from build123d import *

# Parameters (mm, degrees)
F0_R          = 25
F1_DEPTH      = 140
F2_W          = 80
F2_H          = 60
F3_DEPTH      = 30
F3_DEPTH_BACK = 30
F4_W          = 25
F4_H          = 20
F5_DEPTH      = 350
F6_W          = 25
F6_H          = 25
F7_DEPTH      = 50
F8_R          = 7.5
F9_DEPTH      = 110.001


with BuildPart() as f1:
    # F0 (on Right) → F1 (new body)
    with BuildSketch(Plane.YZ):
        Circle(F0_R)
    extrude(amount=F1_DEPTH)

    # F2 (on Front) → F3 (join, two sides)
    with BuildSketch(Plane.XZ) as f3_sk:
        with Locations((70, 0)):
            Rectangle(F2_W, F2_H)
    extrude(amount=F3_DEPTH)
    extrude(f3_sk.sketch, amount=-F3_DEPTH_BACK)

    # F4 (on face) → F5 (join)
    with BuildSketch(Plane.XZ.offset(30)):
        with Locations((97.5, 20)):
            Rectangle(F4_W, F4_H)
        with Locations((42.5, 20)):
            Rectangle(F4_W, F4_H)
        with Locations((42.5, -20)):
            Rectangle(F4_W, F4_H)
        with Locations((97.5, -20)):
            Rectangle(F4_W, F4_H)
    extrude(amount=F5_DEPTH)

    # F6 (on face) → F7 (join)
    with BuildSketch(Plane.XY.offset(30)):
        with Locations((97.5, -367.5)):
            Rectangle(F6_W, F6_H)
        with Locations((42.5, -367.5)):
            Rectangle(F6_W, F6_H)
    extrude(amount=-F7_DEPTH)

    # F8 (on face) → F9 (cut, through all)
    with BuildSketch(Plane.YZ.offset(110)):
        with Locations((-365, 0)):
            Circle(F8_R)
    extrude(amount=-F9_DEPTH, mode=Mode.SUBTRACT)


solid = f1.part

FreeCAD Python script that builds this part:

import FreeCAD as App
import Part
import Sketcher
from FreeCAD import Vector

doc = App.newDocument("Part")
params = doc.addObject("Spreadsheet::Sheet", "Params")
for row, (alias, value) in enumerate([
    ("sketch1_diameter", "50 mm"),
    ("pad1_length", "140 mm"),
    ("sketch2_width", "80 mm"),
    ("sketch2_height", "60 mm"),
    ("pad2_length", "30 mm"),
    ("pad2_length2", "30 mm"),
    ("sketch3_width", "25 mm"),
    ("sketch3_height", "20 mm"),
    ("pad3_length", "350 mm"),
    ("sketch4_width", "25 mm"),
    ("pad4_length", "50 mm"),
    ("sketch5_diameter", "15 mm"),
], start=1):
    params.set(f"A{row}", alias)
    params.set(f"B{row}", "=" + value)
    params.setAlias(f"B{row}", alias)

body = doc.addObject("PartDesign::Body", "Body")

# Sketch on YZ plane
sketch1 = doc.addObject("Sketcher::SketchObject", "Sketch")
body.addObject(sketch1)
sketch1.AttachmentSupport = (doc.YZ_Plane, [""])
sketch1.MapMode = "FlatFace"
sketch1.addGeometry(Part.Circle(Vector(0, 0, 0), Vector(0, 0, 1), 25), False)
sketch1.addConstraint([
    Sketcher.Constraint("Coincident", 0, 3, -1, 1),
    Sketcher.Constraint("Diameter", 0, 50.0),
])
sketch1.setExpression("Constraints[1]", "Params.sketch1_diameter")
pad1 = doc.addObject("PartDesign::Pad", "Pad")
body.addObject(pad1)
pad1.Profile = sketch1
pad1.setExpression("Length", "Params.pad1_length")

# Sketch on XZ plane
sketch2 = doc.addObject("Sketcher::SketchObject", "Sketch001")
body.addObject(sketch2)
sketch2.AttachmentSupport = (doc.XZ_Plane, [""])
sketch2.MapMode = "FlatFace"
sketch2.addGeometry([
    Part.LineSegment(Vector(30, 30, 0), Vector(30, -30, 0)),
    Part.LineSegment(Vector(30, -30, 0), Vector(110, -30, 0)),
    Part.LineSegment(Vector(110, -30, 0), Vector(110, 30, 0)),
    Part.LineSegment(Vector(110, 30, 0), Vector(30, 30, 0)),
], False)
sketch2.addConstraint([
    Sketcher.Constraint("Coincident", 0, 2, 1, 1),
    Sketcher.Constraint("Coincident", 1, 2, 2, 1),
    Sketcher.Constraint("Coincident", 2, 2, 3, 1),
    Sketcher.Constraint("Coincident", 3, 2, 0, 1),
    Sketcher.Constraint("Vertical", 0),
    Sketcher.Constraint("Horizontal", 1),
    Sketcher.Constraint("Vertical", 2),
    Sketcher.Constraint("Horizontal", 3),
    Sketcher.Constraint("DistanceX", 1, 1, 1, 2, 80.0),
    Sketcher.Constraint("DistanceY", 0, 2, 0, 1, 60.0),
    Sketcher.Constraint("DistanceX", -1, 1, 0, 2, 30.0),
    Sketcher.Constraint("DistanceY", 0, 2, -1, 1, 30.0),
])
sketch2.setExpression("Constraints[8]", "Params.sketch2_width")
sketch2.setExpression("Constraints[9]", "Params.sketch2_height")
pad2 = doc.addObject("PartDesign::Pad", "Pad001")
body.addObject(pad2)
pad2.Profile = sketch2
pad2.Type = "TwoLengths"
pad2.setExpression("Length", "Params.pad2_length")
pad2.setExpression("Length2", "Params.pad2_length2")

# Sketch on XZ plane
sketch3 = doc.addObject("Sketcher::SketchObject", "Sketch002")
body.addObject(sketch3)
sketch3.AttachmentSupport = (doc.XZ_Plane, [""])
sketch3.MapMode = "FlatFace"
sketch3.AttachmentOffset = App.Placement(Vector(0, 0, 30), App.Rotation())
sketch3.addGeometry([
    Part.LineSegment(Vector(85, 30, 0), Vector(85, 10, 0)),  # 0
    Part.LineSegment(Vector(85, 10, 0), Vector(110, 10, 0)),  # 1
    Part.LineSegment(Vector(110, 10, 0), Vector(110, 30, 0)),  # 2
    Part.LineSegment(Vector(110, 30, 0), Vector(85, 30, 0)),  # 3
    Part.LineSegment(Vector(30, 30, 0), Vector(30, 10, 0)),  # 4
    Part.LineSegment(Vector(30, 10, 0), Vector(55, 10, 0)),  # 5
    Part.LineSegment(Vector(55, 10, 0), Vector(55, 30, 0)),  # 6
    Part.LineSegment(Vector(55, 30, 0), Vector(30, 30, 0)),  # 7
    Part.LineSegment(Vector(30, -10, 0), Vector(30, -30, 0)),  # 8
    Part.LineSegment(Vector(30, -30, 0), Vector(55, -30, 0)),  # 9
    Part.LineSegment(Vector(55, -30, 0), Vector(55, -10, 0)),  # 10
    Part.LineSegment(Vector(55, -10, 0), Vector(30, -10, 0)),  # 11
    Part.LineSegment(Vector(85, -10, 0), Vector(85, -30, 0)),  # 12
    Part.LineSegment(Vector(85, -30, 0), Vector(110, -30, 0)),  # 13
    Part.LineSegment(Vector(110, -30, 0), Vector(110, -10, 0)),  # 14
    Part.LineSegment(Vector(110, -10, 0), Vector(85, -10, 0)),  # 15
], False)
sketch3.addConstraint([
    Sketcher.Constraint("Coincident", 0, 2, 1, 1),
    Sketcher.Constraint("Coincident", 1, 2, 2, 1),
    Sketcher.Constraint("Coincident", 2, 2, 3, 1),
    Sketcher.Constraint("Coincident", 3, 2, 0, 1),
    Sketcher.Constraint("Coincident", 4, 2, 5, 1),
    Sketcher.Constraint("Coincident", 5, 2, 6, 1),
    Sketcher.Constraint("Coincident", 6, 2, 7, 1),
    Sketcher.Constraint("Coincident", 7, 2, 4, 1),
    Sketcher.Constraint("Coincident", 8, 2, 9, 1),
    Sketcher.Constraint("Coincident", 9, 2, 10, 1),
    Sketcher.Constraint("Coincident", 10, 2, 11, 1),
    Sketcher.Constraint("Coincident", 11, 2, 8, 1),
    Sketcher.Constraint("Coincident", 12, 2, 13, 1),
    Sketcher.Constraint("Coincident", 13, 2, 14, 1),
    Sketcher.Constraint("Coincident", 14, 2, 15, 1),
    Sketcher.Constraint("Coincident", 15, 2, 12, 1),
    Sketcher.Constraint("Vertical", 0),
    Sketcher.Constraint("Horizontal", 1),
    Sketcher.Constraint("Vertical", 2),
    Sketcher.Constraint("Horizontal", 3),
    Sketcher.Constraint("Vertical", 4),
    Sketcher.Constraint("Horizontal", 5),
    Sketcher.Constraint("Vertical", 6),
    Sketcher.Constraint("Horizontal", 7),
    Sketcher.Constraint("Vertical", 8),
    Sketcher.Constraint("Horizontal", 9),
    Sketcher.Constraint("Vertical", 10),
    Sketcher.Constraint("Horizontal", 11),
    Sketcher.Constraint("Vertical", 12),
    Sketcher.Constraint("Horizontal", 13),
    Sketcher.Constraint("Vertical", 14),
    Sketcher.Constraint("Horizontal", 15),
    Sketcher.Constraint("Symmetric", 7, 2, 8, 2, -1),
    Sketcher.Constraint("Symmetric", 5, 2, 10, 2, -1),
    Sketcher.Constraint("Symmetric", 3, 2, 12, 2, -1),
    Sketcher.Constraint("Symmetric", 1, 2, 14, 2, -1),
    Sketcher.Constraint("Horizontal", 1, 2, 4, 2),
    Sketcher.Constraint("Horizontal", 3, 2, 6, 2),
    Sketcher.Constraint("Equal", 3, 5),
    Sketcher.Constraint("DistanceX", 1, 1, 1, 2, 25.0),
    Sketcher.Constraint("DistanceY", 0, 2, 0, 1, 20.0),
    Sketcher.Constraint("DistanceX", -1, 1, 0, 2, 85.0),
    Sketcher.Constraint("DistanceY", -1, 1, 0, 2, 10.0),
    Sketcher.Constraint("DistanceX", -1, 1, 4, 2, 30.0),
])
sketch3.setExpression("Constraints[39]", "Params.sketch3_width")
sketch3.setExpression("Constraints[40]", "Params.sketch3_height")
pad3 = doc.addObject("PartDesign::Pad", "Pad002")
body.addObject(pad3)
pad3.Profile = sketch3
pad3.setExpression("Length", "Params.pad3_length")

# Sketch on XY plane
sketch4 = doc.addObject("Sketcher::SketchObject", "Sketch003")
body.addObject(sketch4)
sketch4.AttachmentSupport = (doc.XY_Plane, [""])
sketch4.MapMode = "FlatFace"
sketch4.AttachmentOffset = App.Placement(Vector(0, 0, 30), App.Rotation())
sketch4.addGeometry([
    Part.LineSegment(Vector(85, -355, 0), Vector(85, -380, 0)),  # 0
    Part.LineSegment(Vector(85, -380, 0), Vector(110, -380, 0)),  # 1
    Part.LineSegment(Vector(110, -380, 0), Vector(110, -355, 0)),  # 2
    Part.LineSegment(Vector(110, -355, 0), Vector(85, -355, 0)),  # 3
    Part.LineSegment(Vector(30, -355, 0), Vector(30, -380, 0)),  # 4
    Part.LineSegment(Vector(30, -380, 0), Vector(55, -380, 0)),  # 5
    Part.LineSegment(Vector(55, -380, 0), Vector(55, -355, 0)),  # 6
    Part.LineSegment(Vector(55, -355, 0), Vector(30, -355, 0)),  # 7
], False)
sketch4.addConstraint([
    Sketcher.Constraint("Coincident", 0, 2, 1, 1),
    Sketcher.Constraint("Coincident", 1, 2, 2, 1),
    Sketcher.Constraint("Coincident", 2, 2, 3, 1),
    Sketcher.Constraint("Coincident", 3, 2, 0, 1),
    Sketcher.Constraint("Coincident", 4, 2, 5, 1),
    Sketcher.Constraint("Coincident", 5, 2, 6, 1),
    Sketcher.Constraint("Coincident", 6, 2, 7, 1),
    Sketcher.Constraint("Coincident", 7, 2, 4, 1),
    Sketcher.Constraint("Vertical", 0),
    Sketcher.Constraint("Horizontal", 1),
    Sketcher.Constraint("Vertical", 2),
    Sketcher.Constraint("Horizontal", 3),
    Sketcher.Constraint("Vertical", 4),
    Sketcher.Constraint("Horizontal", 5),
    Sketcher.Constraint("Vertical", 6),
    Sketcher.Constraint("Horizontal", 7),
    Sketcher.Constraint("Horizontal", 1, 2, 4, 2),
    Sketcher.Constraint("Horizontal", 3, 2, 6, 2),
    Sketcher.Constraint("Equal", 3, 5),
    Sketcher.Constraint("Equal", 7, 0),
    Sketcher.Constraint("DistanceX", 1, 1, 1, 2, 25.0),
    Sketcher.Constraint("DistanceX", -1, 1, 0, 2, 85.0),
    Sketcher.Constraint("DistanceY", 0, 2, -1, 1, 380.0),
    Sketcher.Constraint("DistanceX", -1, 1, 4, 2, 30.0),
])
sketch4.setExpression("Constraints[20]", "Params.sketch4_width")
pad4 = doc.addObject("PartDesign::Pad", "Pad003")
body.addObject(pad4)
pad4.Profile = sketch4
pad4.setExpression("Length", "Params.pad4_length")
pad4.Reversed = True

# Sketch on YZ plane
sketch5 = doc.addObject("Sketcher::SketchObject", "Sketch004")
body.addObject(sketch5)
sketch5.AttachmentSupport = (doc.YZ_Plane, [""])
sketch5.MapMode = "FlatFace"
sketch5.AttachmentOffset = App.Placement(Vector(0, 0, 110), App.Rotation())
sketch5.addGeometry(Part.Circle(Vector(-365, 0, 0), Vector(0, 0, 1), 7.5), False)
sketch5.addConstraint([
    Sketcher.Constraint("PointOnObject", 0, 3, -1),
    Sketcher.Constraint("Diameter", 0, 15.0),
    Sketcher.Constraint("DistanceX", 0, 3, -1, 1, 365.0),
])
sketch5.setExpression("Constraints[1]", "Params.sketch5_diameter")
pocket1 = doc.addObject("PartDesign::Pocket", "Pocket")
body.addObject(pocket1)
pocket1.Profile = sketch5
pocket1.Type = "ThroughAll"

doc.recompute()
